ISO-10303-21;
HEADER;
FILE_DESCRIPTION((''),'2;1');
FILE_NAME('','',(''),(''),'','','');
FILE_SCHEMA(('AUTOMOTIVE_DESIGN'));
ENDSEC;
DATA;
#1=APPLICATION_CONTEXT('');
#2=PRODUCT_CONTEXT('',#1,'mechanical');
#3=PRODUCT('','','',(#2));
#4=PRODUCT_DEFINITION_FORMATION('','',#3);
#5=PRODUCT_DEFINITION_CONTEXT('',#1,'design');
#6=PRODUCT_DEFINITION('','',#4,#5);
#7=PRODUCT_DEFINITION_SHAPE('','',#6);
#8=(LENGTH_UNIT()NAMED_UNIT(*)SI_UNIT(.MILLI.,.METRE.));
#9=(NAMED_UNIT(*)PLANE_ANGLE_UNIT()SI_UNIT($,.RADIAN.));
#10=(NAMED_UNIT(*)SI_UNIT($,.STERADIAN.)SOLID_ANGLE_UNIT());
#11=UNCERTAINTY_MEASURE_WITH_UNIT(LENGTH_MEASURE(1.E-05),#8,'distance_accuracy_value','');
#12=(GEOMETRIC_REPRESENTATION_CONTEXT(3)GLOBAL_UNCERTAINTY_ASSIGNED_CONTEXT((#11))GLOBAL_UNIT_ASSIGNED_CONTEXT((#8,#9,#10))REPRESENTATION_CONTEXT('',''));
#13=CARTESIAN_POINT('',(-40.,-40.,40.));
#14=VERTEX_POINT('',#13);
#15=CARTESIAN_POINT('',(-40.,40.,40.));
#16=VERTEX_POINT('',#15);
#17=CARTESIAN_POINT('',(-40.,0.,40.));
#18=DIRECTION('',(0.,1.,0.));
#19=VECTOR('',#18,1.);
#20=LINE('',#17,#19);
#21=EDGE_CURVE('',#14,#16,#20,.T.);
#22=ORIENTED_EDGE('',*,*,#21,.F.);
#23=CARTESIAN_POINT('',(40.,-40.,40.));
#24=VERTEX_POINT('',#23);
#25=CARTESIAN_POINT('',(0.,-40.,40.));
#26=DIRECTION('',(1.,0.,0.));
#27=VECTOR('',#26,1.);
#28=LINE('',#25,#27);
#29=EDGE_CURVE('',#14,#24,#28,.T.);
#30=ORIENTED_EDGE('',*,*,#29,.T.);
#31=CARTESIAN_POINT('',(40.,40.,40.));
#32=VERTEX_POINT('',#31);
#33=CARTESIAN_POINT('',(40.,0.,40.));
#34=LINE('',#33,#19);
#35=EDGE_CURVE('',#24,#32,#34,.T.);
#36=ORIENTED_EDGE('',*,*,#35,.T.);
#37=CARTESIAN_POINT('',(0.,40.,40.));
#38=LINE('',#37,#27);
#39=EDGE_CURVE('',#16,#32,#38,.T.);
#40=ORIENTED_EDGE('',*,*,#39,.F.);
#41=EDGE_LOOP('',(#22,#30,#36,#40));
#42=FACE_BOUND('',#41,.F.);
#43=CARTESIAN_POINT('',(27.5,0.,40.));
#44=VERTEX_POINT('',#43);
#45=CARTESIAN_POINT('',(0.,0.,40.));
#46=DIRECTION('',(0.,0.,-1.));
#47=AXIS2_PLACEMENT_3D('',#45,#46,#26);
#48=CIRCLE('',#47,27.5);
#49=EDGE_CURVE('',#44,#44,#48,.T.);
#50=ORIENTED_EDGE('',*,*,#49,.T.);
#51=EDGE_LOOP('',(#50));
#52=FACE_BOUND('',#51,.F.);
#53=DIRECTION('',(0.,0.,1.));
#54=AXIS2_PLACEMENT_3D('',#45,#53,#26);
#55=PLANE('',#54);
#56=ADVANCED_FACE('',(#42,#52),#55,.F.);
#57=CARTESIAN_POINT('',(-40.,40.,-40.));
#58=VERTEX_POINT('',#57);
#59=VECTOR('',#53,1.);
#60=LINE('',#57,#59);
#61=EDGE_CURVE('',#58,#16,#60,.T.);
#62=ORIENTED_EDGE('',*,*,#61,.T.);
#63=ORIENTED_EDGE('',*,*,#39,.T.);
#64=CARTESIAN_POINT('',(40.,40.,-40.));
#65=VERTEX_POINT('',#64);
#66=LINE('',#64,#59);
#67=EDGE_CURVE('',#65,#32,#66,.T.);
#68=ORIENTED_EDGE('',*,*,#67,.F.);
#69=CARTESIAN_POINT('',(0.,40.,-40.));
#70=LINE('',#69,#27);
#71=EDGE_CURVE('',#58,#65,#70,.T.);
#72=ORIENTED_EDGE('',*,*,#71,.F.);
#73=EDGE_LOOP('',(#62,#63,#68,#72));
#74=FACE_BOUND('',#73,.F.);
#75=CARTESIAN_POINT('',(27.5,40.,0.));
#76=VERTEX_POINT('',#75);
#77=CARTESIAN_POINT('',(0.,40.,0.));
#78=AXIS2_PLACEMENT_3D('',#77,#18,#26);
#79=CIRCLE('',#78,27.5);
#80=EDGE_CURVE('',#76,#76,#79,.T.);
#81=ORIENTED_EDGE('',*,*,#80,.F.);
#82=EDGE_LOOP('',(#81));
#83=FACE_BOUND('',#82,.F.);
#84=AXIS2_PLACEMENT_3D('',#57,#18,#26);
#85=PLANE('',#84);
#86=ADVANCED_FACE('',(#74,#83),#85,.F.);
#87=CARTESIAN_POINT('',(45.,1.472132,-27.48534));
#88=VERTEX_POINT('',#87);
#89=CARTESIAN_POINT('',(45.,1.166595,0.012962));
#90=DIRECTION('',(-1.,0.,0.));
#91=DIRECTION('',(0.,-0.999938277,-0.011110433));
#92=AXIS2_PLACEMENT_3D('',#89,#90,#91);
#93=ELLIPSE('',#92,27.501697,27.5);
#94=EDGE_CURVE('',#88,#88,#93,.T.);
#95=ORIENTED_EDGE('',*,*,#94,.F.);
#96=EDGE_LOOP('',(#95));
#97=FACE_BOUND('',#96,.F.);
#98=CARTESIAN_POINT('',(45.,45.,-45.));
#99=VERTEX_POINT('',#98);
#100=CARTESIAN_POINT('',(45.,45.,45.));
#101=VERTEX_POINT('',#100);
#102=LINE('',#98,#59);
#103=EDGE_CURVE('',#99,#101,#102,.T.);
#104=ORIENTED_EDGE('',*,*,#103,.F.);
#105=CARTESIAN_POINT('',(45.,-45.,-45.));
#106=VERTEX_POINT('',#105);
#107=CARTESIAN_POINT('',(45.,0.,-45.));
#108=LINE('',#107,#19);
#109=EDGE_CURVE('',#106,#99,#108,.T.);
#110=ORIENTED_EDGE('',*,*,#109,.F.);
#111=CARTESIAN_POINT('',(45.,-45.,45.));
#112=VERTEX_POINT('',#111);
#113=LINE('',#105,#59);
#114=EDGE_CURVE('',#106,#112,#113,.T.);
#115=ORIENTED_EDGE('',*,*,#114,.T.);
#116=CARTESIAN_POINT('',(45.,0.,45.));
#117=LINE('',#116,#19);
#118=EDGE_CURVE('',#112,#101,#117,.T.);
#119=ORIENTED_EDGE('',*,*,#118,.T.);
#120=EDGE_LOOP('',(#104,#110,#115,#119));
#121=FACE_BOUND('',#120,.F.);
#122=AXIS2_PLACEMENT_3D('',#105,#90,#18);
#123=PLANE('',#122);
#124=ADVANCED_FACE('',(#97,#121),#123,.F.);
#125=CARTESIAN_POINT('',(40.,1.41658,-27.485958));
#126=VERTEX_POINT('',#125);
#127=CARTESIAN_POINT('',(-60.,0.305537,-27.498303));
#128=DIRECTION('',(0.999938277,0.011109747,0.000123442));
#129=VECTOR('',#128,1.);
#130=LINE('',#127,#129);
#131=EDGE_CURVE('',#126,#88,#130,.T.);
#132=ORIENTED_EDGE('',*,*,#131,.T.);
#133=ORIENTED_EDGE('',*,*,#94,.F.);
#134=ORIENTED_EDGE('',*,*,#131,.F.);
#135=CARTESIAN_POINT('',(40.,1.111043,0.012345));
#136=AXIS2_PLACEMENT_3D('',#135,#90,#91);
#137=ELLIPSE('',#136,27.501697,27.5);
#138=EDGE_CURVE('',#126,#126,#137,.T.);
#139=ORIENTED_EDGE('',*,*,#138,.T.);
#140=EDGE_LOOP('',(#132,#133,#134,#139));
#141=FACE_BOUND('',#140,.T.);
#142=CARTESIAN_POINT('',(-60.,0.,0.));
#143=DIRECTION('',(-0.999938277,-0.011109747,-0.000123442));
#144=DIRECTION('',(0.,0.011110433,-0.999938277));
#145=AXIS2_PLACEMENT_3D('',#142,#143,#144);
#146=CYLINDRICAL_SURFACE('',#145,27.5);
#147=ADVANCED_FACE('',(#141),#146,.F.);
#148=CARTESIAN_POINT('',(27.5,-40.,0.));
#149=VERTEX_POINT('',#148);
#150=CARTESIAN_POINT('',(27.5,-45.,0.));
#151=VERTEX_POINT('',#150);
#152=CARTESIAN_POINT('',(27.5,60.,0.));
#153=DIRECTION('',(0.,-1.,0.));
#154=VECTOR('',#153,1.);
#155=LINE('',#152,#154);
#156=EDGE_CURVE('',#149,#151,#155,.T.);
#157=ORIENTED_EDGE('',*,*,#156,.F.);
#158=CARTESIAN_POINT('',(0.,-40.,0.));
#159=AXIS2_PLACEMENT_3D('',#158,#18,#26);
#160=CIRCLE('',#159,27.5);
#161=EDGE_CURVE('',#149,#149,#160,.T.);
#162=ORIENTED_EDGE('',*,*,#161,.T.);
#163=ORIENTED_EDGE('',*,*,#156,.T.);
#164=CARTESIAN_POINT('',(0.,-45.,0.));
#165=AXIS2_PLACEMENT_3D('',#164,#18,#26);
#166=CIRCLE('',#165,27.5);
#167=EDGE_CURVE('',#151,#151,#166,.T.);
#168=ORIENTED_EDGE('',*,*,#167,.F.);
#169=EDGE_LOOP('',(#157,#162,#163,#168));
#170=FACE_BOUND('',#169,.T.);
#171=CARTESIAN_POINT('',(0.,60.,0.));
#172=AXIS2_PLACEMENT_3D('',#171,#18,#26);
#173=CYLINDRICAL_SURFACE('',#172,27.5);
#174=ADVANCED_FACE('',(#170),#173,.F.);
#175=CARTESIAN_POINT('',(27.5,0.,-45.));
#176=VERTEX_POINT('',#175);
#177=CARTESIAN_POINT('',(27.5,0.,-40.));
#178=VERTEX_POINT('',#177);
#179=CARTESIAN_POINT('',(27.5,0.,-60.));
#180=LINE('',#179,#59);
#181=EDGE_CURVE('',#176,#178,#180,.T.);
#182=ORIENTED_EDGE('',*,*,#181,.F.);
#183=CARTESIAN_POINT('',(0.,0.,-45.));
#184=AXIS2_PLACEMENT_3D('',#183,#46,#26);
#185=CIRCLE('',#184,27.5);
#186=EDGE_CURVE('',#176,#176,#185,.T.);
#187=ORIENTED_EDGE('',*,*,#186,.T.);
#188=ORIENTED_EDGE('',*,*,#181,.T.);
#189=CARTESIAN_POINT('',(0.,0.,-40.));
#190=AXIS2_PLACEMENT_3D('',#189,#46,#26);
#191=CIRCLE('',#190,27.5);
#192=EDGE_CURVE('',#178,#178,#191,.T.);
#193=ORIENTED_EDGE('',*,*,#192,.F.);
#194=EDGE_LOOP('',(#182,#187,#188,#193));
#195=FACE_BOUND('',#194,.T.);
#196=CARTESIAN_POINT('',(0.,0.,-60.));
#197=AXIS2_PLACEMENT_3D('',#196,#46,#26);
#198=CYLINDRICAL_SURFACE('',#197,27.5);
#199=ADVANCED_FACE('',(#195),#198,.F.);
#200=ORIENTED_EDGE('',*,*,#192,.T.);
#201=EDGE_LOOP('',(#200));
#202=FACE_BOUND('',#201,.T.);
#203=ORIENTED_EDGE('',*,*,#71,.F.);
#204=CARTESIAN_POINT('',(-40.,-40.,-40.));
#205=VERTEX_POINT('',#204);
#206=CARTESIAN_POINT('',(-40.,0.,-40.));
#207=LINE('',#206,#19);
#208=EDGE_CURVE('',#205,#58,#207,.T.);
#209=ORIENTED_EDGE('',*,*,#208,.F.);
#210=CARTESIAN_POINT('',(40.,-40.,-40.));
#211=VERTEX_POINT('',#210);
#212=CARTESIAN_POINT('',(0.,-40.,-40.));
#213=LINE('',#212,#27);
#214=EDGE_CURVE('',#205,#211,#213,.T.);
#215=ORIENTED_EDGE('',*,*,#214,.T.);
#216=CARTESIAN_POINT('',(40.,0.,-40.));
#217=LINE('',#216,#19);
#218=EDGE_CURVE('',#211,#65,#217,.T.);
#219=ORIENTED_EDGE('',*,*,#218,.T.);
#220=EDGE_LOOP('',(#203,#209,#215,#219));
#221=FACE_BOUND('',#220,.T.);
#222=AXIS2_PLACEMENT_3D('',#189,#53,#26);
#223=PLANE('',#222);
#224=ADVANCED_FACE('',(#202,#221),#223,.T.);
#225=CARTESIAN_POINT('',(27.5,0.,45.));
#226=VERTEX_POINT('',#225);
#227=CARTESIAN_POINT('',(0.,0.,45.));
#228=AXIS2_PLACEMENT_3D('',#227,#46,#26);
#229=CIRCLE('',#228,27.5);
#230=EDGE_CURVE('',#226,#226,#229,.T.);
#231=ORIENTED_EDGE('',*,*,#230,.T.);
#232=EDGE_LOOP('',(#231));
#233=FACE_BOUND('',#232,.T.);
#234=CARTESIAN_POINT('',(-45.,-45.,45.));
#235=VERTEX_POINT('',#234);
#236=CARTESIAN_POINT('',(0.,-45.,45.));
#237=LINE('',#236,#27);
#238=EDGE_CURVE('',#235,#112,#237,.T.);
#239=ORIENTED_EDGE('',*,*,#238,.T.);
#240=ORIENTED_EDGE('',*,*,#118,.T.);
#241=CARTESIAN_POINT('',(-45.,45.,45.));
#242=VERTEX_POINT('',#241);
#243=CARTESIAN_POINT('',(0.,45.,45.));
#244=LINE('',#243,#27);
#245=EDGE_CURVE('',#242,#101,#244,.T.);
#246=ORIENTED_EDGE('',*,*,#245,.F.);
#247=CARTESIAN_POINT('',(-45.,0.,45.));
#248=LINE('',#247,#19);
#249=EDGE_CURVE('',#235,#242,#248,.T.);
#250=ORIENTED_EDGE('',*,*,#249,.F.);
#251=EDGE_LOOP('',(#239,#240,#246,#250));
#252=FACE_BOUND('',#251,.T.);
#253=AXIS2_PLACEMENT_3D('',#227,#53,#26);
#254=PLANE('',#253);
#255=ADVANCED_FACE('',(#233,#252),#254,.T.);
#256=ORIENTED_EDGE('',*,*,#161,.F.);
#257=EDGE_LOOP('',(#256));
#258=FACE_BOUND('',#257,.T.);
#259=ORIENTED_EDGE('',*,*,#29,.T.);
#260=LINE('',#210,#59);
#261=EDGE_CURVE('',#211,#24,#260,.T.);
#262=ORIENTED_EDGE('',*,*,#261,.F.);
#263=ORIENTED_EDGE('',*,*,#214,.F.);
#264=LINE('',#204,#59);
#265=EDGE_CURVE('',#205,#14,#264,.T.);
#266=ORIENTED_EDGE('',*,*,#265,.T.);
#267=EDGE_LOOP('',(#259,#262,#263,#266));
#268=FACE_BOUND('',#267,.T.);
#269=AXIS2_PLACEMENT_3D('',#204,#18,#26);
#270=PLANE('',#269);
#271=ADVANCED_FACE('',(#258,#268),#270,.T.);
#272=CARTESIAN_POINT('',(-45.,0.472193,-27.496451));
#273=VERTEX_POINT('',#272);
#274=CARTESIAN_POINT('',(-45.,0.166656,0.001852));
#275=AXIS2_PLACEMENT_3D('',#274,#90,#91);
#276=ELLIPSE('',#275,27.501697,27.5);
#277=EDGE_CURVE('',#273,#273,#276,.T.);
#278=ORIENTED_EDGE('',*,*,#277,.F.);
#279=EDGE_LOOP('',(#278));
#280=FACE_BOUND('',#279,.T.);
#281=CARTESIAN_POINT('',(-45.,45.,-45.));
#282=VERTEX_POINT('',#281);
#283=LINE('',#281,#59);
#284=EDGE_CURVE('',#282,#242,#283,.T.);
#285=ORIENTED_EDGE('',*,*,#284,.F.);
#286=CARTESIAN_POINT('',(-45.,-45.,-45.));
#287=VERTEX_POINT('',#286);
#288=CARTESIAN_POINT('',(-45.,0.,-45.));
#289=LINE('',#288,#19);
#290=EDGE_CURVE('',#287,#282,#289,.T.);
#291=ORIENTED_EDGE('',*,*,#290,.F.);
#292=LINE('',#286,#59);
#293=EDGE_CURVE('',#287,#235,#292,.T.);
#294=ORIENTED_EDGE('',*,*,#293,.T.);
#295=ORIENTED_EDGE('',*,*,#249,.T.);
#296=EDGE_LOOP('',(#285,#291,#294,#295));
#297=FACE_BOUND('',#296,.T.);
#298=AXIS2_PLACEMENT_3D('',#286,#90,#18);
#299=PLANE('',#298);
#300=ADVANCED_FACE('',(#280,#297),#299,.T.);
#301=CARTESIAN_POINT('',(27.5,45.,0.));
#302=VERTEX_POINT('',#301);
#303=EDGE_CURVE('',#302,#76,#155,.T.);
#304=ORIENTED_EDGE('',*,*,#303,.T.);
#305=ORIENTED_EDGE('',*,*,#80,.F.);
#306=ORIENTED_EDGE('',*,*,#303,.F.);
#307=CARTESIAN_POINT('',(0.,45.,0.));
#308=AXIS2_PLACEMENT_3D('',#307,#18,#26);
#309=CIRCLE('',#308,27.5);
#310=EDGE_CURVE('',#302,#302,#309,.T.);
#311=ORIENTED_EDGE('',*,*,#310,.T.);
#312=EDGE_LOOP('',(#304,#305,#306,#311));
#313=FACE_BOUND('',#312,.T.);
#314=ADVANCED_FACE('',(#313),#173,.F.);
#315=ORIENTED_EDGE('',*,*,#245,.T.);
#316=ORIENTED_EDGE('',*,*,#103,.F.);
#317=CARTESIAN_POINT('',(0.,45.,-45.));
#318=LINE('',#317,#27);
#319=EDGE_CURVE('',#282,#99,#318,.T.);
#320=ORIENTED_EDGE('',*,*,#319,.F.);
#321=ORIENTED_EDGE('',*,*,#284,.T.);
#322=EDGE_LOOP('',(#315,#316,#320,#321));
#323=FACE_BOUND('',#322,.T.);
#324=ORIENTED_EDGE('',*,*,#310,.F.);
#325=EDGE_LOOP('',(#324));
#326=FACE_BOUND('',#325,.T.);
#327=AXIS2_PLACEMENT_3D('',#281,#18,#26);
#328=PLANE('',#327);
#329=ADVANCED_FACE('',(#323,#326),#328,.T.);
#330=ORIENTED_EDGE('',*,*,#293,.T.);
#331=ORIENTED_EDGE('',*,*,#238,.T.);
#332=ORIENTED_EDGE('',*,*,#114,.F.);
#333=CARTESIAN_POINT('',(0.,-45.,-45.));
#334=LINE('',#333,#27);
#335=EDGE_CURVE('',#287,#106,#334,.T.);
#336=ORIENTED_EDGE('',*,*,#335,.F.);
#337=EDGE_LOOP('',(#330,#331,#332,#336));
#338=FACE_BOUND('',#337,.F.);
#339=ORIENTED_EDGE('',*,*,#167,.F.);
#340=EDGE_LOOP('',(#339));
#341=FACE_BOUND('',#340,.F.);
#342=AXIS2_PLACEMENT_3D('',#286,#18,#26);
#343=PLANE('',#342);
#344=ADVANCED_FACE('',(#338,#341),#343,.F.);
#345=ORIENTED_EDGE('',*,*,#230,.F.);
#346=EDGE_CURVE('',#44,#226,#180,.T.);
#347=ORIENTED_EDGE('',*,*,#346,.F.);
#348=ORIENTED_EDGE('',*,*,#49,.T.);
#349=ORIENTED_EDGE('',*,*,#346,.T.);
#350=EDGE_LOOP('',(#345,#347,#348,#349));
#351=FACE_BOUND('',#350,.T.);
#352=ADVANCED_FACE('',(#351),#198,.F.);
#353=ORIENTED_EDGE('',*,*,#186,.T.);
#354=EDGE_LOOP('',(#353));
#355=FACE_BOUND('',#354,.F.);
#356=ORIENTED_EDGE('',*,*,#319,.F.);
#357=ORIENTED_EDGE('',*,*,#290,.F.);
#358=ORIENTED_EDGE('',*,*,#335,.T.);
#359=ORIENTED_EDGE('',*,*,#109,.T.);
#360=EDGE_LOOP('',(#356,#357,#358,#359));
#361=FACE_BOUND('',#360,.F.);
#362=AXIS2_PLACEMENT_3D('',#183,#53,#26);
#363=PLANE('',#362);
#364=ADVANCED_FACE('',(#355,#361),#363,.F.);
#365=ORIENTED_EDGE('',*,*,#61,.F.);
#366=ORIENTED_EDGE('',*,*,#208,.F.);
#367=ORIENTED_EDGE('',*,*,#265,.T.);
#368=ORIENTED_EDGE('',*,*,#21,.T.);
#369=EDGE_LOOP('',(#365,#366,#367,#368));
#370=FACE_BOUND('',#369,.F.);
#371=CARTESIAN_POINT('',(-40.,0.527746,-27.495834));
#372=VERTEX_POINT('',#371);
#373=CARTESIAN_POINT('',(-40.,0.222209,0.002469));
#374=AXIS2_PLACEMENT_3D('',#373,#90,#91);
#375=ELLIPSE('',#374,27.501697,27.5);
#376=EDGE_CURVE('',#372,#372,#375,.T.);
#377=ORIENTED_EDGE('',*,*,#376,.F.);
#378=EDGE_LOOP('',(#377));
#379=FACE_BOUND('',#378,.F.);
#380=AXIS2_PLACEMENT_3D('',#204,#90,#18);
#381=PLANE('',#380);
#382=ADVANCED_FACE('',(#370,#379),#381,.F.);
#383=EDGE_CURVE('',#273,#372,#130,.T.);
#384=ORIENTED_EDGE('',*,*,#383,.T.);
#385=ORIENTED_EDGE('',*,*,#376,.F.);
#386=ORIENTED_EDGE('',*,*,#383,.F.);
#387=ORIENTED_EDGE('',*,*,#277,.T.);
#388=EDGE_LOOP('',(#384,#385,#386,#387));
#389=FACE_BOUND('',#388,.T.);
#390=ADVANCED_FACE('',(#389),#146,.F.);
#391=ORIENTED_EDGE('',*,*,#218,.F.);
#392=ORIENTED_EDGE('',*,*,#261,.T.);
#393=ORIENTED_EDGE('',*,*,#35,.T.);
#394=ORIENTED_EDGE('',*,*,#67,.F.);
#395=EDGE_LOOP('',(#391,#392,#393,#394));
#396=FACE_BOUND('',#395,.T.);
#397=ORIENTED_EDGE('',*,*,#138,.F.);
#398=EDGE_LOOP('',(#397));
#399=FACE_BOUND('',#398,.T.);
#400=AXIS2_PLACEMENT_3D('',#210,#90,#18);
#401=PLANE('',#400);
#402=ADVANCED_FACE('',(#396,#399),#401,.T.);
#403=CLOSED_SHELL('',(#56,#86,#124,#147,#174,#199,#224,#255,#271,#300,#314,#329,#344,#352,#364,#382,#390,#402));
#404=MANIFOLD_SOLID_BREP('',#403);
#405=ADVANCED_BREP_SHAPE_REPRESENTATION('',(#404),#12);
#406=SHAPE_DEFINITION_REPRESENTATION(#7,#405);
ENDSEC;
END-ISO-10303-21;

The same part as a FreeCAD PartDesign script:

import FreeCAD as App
import Part
import Sketcher
Q = App.Units.Quantity

doc = App.newDocument("Part")
body = doc.addObject("PartDesign::Body", "Body")

sketch1 = body.newObject("Sketcher::SketchObject", "Sketch")
sketch1.AttachmentSupport = (doc.getObject("XZ_Plane"), [""])
sketch1.MapMode = "FlatFace"
sketch1.AttachmentOffset = App.Placement(App.Vector(0, 0, -60), App.Rotation())
sketch1.addGeometry(Part.Circle(App.Vector(0, 0, 0), App.Vector(0, 0, 1), 28), False)
sketch1.addConstraint(Sketcher.Constraint("Coincident", 0, 3, -1, 1))
sketch1.addConstraint(Sketcher.Constraint("Diameter", 0, Q("55 mm")))
pad1 = body.newObject("PartDesign::Pad", "Pad")
pad1.Profile = sketch1
pad1.Length = 120
body2 = doc.addObject("PartDesign::Body", "Body001")

sketch2 = body2.newObject("Sketcher::SketchObject", "Sketch001")
sketch2.AttachmentSupport = (doc.getObject("XY_Plane001"), [""])
sketch2.MapMode = "FlatFace"
sketch2.addGeometry(Part.Circle(App.Vector(0, 0, 0), App.Vector(0, 0, 1), 28), False)
sketch2.addConstraint(Sketcher.Constraint("Coincident", 0, 3, -1, 1))
sketch2.addConstraint(Sketcher.Constraint("Diameter", 0, Q("55 mm")))
pad2 = body2.newObject("PartDesign::Pad", "Pad001")
pad2.Profile = sketch2
pad2.Length = 120
body3 = doc.addObject("PartDesign::Body", "Body002")
doc.recompute()

body2.Placement = App.Placement(App.Vector(0, 0, 0), App.Rotation(App.Vector(1, 0, 0), 89.363406))
boolean = body3.newObject("PartDesign::Boolean", "Boolean")
boolean.Type = "Fuse"
boolean.addObjects([body2])
body4 = doc.addObject("PartDesign::Body", "Body003")
doc.recompute()

body3.Placement = App.Placement(App.Vector(0, 0, 0), App.Rotation(App.Vector(0, 1, 0), 89.363406))
boolean2 = body4.newObject("PartDesign::Boolean", "Boolean001")
boolean2.Type = "Fuse"
boolean2.addObjects([body3])
body5 = doc.addObject("PartDesign::Body", "Body004")
doc.recompute()

body4.Placement = App.Placement(App.Vector(-60, 0, 0), App.Rotation(App.Vector(0, 0, 1), 90))
boolean3 = body5.newObject("PartDesign::Boolean", "Boolean002")
boolean3.Type = "Fuse"
boolean3.addObjects([body4])
body6 = doc.addObject("PartDesign::Body", "Body005")

sketch3 = body6.newObject("Sketcher::SketchObject", "Sketch002")
sketch3.AttachmentSupport = (doc.getObject("XY_Plane005"), [""])
sketch3.MapMode = "FlatFace"
sketch3.AttachmentOffset = App.Placement(App.Vector(0, 0, -60), App.Rotation())
sketch3.addGeometry(Part.Circle(App.Vector(0, 0, 0), App.Vector(0, 0, 1), 28), False)
sketch3.addConstraint(Sketcher.Constraint("Coincident", 0, 3, -1, 1))
sketch3.addConstraint(Sketcher.Constraint("Diameter", 0, Q("55 mm")))
pad3 = body6.newObject("PartDesign::Pad", "Pad002")
pad3.Profile = sketch3
pad3.Length = 120
body7 = doc.addObject("PartDesign::Body", "Body006")

sketch4 = body7.newObject("Sketcher::SketchObject", "Sketch003")
sketch4.AttachmentSupport = (doc.getObject("XY_Plane006"), [""])
sketch4.MapMode = "FlatFace"
sketch4.AttachmentOffset = App.Placement(App.Vector(0, 0, -40), App.Rotation())
sketch4.addGeometry(Part.LineSegment(App.Vector(-40, 40, 0), App.Vector(-40, -40, 0)), False)
sketch4.addGeometry(Part.LineSegment(App.Vector(-40, -40, 0), App.Vector(40, -40, 0)), False)
sketch4.addGeometry(Part.LineSegment(App.Vector(40, -40, 0), App.Vector(40, 40, 0)), False)
sketch4.addGeometry(Part.LineSegment(App.Vector(40, 40, 0), App.Vector(-40, 40, 0)), False)
sketch4.addConstraint(Sketcher.Constraint("Coincident", 0, 2, 1, 1))
sketch4.addConstraint(Sketcher.Constraint("Coincident", 1, 2, 2, 1))
sketch4.addConstraint(Sketcher.Constraint("Coincident", 2, 2, 3, 1))
sketch4.addConstraint(Sketcher.Constraint("Coincident", 3, 2, 0, 1))
sketch4.addConstraint(Sketcher.Constraint("Vertical", 0))
sketch4.addConstraint(Sketcher.Constraint("Horizontal", 1))
sketch4.addConstraint(Sketcher.Constraint("Vertical", 2))
sketch4.addConstraint(Sketcher.Constraint("Horizontal", 3))
sketch4.addConstraint(Sketcher.Constraint("Symmetric", 0, 2, 2, 2, -1, 1))
sketch4.addConstraint(Sketcher.Constraint("Equal", 3, 0))
sketch4.addConstraint(Sketcher.Constraint("DistanceX", 1, 1, 1, 2, Q("80 mm")))
pad4 = body7.newObject("PartDesign::Pad", "Pad003")
pad4.Profile = sketch4
pad4.Length = 80
body8 = doc.addObject("PartDesign::Body", "Body007")

sketch5 = body8.newObject("Sketcher::SketchObject", "Sketch004")
sketch5.AttachmentSupport = (doc.getObject("XY_Plane007"), [""])
sketch5.MapMode = "FlatFace"
sketch5.AttachmentOffset = App.Placement(App.Vector(0, 0, -45), App.Rotation())
sketch5.addGeometry(Part.LineSegment(App.Vector(-45, 45, 0), App.Vector(-45, -45, 0)), False)
sketch5.addGeometry(Part.LineSegment(App.Vector(-45, -45, 0), App.Vector(45, -45, 0)), False)
sketch5.addGeometry(Part.LineSegment(App.Vector(45, -45, 0), App.Vector(45, 45, 0)), False)
sketch5.addGeometry(Part.LineSegment(App.Vector(45, 45, 0), App.Vector(-45, 45, 0)), False)
sketch5.addConstraint(Sketcher.Constraint("Coincident", 0, 2, 1, 1))
sketch5.addConstraint(Sketcher.Constraint("Coincident", 1, 2, 2, 1))
sketch5.addConstraint(Sketcher.Constraint("Coincident", 2, 2, 3, 1))
sketch5.addConstraint(Sketcher.Constraint("Coincident", 3, 2, 0, 1))
sketch5.addConstraint(Sketcher.Constraint("Vertical", 0))
sketch5.addConstraint(Sketcher.Constraint("Horizontal", 1))
sketch5.addConstraint(Sketcher.Constraint("Vertical", 2))
sketch5.addConstraint(Sketcher.Constraint("Horizontal", 3))
sketch5.addConstraint(Sketcher.Constraint("Symmetric", 0, 2, 2, 2, -1, 1))
sketch5.addConstraint(Sketcher.Constraint("Equal", 3, 0))
sketch5.addConstraint(Sketcher.Constraint("DistanceX", 1, 1, 1, 2, Q("90 mm")))
pad5 = body8.newObject("PartDesign::Pad", "Pad004")
pad5.Profile = sketch5
pad5.Length = 90
doc.recompute()

boolean4 = body8.newObject("PartDesign::Boolean", "Boolean003")
boolean4.Type = "Cut"
boolean4.addObjects([body7])
doc.recompute()

boolean5 = body8.newObject("PartDesign::Boolean", "Boolean004")
boolean5.Type = "Cut"
boolean5.addObjects([body6])
doc.recompute()

boolean6 = body8.newObject("PartDesign::Boolean", "Boolean005")
boolean6.Type = "Cut"
boolean6.addObjects([body5])
doc.recompute()

boolean7 = body8.newObject("PartDesign::Boolean", "Boolean006")
boolean7.Type = "Cut"
boolean7.addObjects([body])

doc.recompute()
